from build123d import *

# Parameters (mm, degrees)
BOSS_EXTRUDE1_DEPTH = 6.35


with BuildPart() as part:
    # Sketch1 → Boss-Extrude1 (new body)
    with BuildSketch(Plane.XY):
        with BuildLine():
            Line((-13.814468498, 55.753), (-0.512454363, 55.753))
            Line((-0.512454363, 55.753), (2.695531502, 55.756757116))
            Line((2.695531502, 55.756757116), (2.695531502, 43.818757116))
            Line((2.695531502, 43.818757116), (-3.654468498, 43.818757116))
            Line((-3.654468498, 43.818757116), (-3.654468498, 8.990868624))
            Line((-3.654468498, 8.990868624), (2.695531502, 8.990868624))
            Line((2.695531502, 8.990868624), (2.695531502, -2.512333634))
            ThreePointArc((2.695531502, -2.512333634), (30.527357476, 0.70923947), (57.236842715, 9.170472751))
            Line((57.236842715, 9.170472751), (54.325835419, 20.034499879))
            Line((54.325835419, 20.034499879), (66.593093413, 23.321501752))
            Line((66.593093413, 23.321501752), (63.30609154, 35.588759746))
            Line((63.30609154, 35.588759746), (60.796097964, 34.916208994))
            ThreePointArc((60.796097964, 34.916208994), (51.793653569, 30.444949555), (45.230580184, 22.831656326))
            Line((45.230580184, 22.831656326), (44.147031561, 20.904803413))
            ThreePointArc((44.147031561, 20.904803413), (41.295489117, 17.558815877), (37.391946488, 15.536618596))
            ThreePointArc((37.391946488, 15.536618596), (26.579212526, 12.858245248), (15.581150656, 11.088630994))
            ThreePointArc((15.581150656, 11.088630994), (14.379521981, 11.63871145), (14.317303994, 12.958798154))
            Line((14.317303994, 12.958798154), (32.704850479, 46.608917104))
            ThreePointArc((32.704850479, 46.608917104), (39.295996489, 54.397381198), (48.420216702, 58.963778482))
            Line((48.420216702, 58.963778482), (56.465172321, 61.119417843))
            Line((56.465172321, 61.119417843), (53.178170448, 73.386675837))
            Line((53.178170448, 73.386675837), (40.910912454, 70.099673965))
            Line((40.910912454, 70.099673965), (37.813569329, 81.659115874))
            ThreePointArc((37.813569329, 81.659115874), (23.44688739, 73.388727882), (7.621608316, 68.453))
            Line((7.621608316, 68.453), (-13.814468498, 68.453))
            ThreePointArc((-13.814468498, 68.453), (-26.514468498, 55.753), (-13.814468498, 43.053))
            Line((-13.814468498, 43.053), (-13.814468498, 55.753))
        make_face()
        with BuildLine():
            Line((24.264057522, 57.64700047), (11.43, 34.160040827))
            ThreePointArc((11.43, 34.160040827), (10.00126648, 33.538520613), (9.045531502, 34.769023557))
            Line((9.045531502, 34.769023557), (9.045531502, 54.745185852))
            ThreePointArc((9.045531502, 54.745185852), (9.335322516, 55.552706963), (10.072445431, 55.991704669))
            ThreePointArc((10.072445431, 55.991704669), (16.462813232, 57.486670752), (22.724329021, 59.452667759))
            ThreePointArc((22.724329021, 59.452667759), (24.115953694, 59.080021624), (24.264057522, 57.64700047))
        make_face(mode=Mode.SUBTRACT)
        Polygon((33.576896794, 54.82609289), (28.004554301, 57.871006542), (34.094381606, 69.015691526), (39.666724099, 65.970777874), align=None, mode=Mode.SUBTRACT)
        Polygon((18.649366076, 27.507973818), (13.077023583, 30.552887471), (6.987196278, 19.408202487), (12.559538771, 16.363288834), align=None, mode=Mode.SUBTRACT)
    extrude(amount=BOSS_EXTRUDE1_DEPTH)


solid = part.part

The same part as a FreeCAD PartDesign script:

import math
import FreeCAD as App
import Part
import Sketcher
from FreeCAD import Vector
Q = App.Units.Quantity

doc = App.newDocument("Part")
body = doc.addObject("PartDesign::Body", "Body")

# Sketch on XY plane
sketch1 = body.newObject("Sketcher::SketchObject", "Sketch")
sketch1.AttachmentSupport = (doc.getObject("XY_Plane"), [""])
sketch1.MapMode = "FlatFace"
sketch1.addGeometry(Part.LineSegment(Vector(-13.814468, 55.753, 0), Vector(-0.512454, 55.753, 0)), False)
sketch1.addGeometry(Part.LineSegment(Vector(-0.512454, 55.753, 0), Vector(2.695532, 55.756757, 0)), False)
sketch1.addGeometry(Part.LineSegment(Vector(2.695532, 55.756757, 0), Vector(2.695532, 43.818757, 0)), False)
sketch1.addGeometry(Part.LineSegment(Vector(2.695532, 43.818757, 0), Vector(-3.654468, 43.818757, 0)), False)
sketch1.addGeometry(Part.LineSegment(Vector(-3.654468, 43.818757, 0), Vector(-3.654468, 8.990869, 0)), False)
sketch1.addGeometry(Part.LineSegment(Vector(-3.654468, 8.990869, 0), Vector(2.695532, 8.990869, 0)), False)
sketch1.addGeometry(Part.LineSegment(Vector(2.695532, 8.990869, 0), Vector(2.695532, -2.512334, 0)), False)
sketch1.addGeometry(Part.ArcOfCircle(Part.Circle(Vector(-0.155752, 143.953675, 0), Vector(0, 0, 1), 146.49376), math.radians(-88.884752), math.radians(-66.935009)), False)
sketch1.addGeometry(Part.LineSegment(Vector(57.236843, 9.170473, 0), Vector(54.325835, 20.0345, 0)), False)
sketch1.addGeometry(Part.LineSegment(Vector(54.325835, 20.0345, 0), Vector(66.593093, 23.321502, 0)), False)
sketch1.addGeometry(Part.LineSegment(Vector(66.593093, 23.321502, 0), Vector(63.306092, 35.58876, 0)), False)
sketch1.addGeometry(Part.LineSegment(Vector(63.306092, 35.58876, 0), Vector(60.796098, 34.916209, 0)), False)
sketch1.addGeometry(Part.ArcOfCircle(Part.Circle(Vector(67.370102, 10.381693, 0), Vector(0, 0, 1), 25.4), math.radians(105), math.radians(150.649162)), False)
sketch1.addGeometry(Part.LineSegment(Vector(45.23058, 22.831656, 0), Vector(44.147032, 20.904803, 0)), False)
sketch1.addGeometry(Part.ArcOfCircle(Part.Circle(Vector(34.184247, 26.507287, 0), Vector(0, 0, 1), 11.43), math.radians(-73.701676), math.radians(-29.350838)), False)
sketch1.addGeometry(Part.ArcOfCircle(Part.Circle(Vector(-0.155752, 143.953676, 0), Vector(0, 0, 1), 133.79376), math.radians(-83.245199), math.radians(-73.701676)), False)
sketch1.addGeometry(Part.ArcOfCircle(Part.Circle(Vector(15.431772, 12.349815, 0), Vector(0, 0, 1), 1.27), math.radians(151.346337), math.radians(276.7548)), False)
sketch1.addGeometry(Part.LineSegment(Vector(14.317304, 12.958798, 0), Vector(32.70485, 46.608917, 0)), False)
sketch1.addGeometry(Part.ArcOfCircle(Part.Circle(Vector(54.99422, 34.429262, 0), Vector(0, 0, 1), 25.4), math.radians(105), math.radians(151.346337)), False)
sketch1.addGeometry(Part.LineSegment(Vector(48.420217, 58.963778, 0), Vector(56.465172, 61.119418, 0)), False)
sketch1.addGeometry(Part.LineSegment(Vector(56.465172, 61.119418, 0), Vector(53.17817, 73.386676, 0)), False)
sketch1.addGeometry(Part.LineSegment(Vector(53.17817, 73.386676, 0), Vector(40.910912, 70.099674, 0)), False)
sketch1.addGeometry(Part.LineSegment(Vector(40.910912, 70.099674, 0), Vector(37.813569, 81.659116, 0)), False)
sketch1.addGeometry(Part.ArcOfCircle(Part.Circle(Vector(-6.809754, 142.56178, 0), Vector(0, 0, 1), 75.500831), math.radians(-78.980576), math.radians(-53.769802)), False)
sketch1.addGeometry(Part.LineSegment(Vector(7.621608, 68.453, 0), Vector(-13.814468, 68.453, 0)), False)
sketch1.addGeometry(Part.ArcOfCircle(Part.Circle(Vector(-13.814468, 55.753, 0), Vector(0, 0, 1), 12.7), math.radians(90), math.radians(270)), False)
sketch1.addGeometry(Part.LineSegment(Vector(-13.814468, 43.053, 0), Vector(-13.814468, 55.753, 0)), False)
sketch1.addGeometry(Part.LineSegment(Vector(13.077024, 30.552887, 0), Vector(18.649366, 27.507974, 0)), False)
sketch1.addGeometry(Part.LineSegment(Vector(18.649366, 27.507974, 0), Vector(12.559539, 16.363289, 0)), False)
sketch1.addGeometry(Part.LineSegment(Vector(12.559539, 16.363289, 0), Vector(6.987196, 19.408202, 0)), False)
sketch1.addGeometry(Part.LineSegment(Vector(6.987196, 19.408202, 0), Vector(13.077024, 30.552887, 0)), False)
sketch1.addGeometry(Part.ArcOfCircle(Part.Circle(Vector(23.149589, 58.255983, 0), Vector(0, 0, 1), 1.27), math.radians(-28.653663), math.radians(109.563441)), False)
sketch1.addGeometry(Part.LineSegment(Vector(24.264058, 57.647, 0), Vector(11.43, 34.160041, 0)), False)
sketch1.addGeometry(Part.ArcOfCircle(Part.Circle(Vector(10.315532, 34.769024, 0), Vector(0, 0, 1), 1.27), math.radians(180), math.radians(331.346337)), False)
sketch1.addGeometry(Part.LineSegment(Vector(9.045532, 34.769024, 0), Vector(9.045532, 54.745186, 0)), False)
sketch1.addGeometry(Part.ArcOfCircle(Part.Circle(Vector(10.315532, 54.745186, 0), Vector(0, 0, 1), 1.27), math.radians(101.034869), math.radians(180)), False)
sketch1.addGeometry(Part.ArcOfCircle(Part.Circle(Vector(-6.809754, 142.56178, 0), Vector(0, 0, 1), 88.200831), math.radians(-78.965131), math.radians(-70.436559)), False)
sketch1.addGeometry(Part.LineSegment(Vector(39.666724, 65.970778, 0), Vector(33.576897, 54.826093, 0)), False)
sketch1.addGeometry(Part.LineSegment(Vector(33.576897, 54.826093, 0), Vector(28.004554, 57.871007, 0)), False)
sketch1.addGeometry(Part.LineSegment(Vector(28.004554, 57.871007, 0), Vector(34.094382, 69.015692, 0)), False)
sketch1.addGeometry(Part.LineSegment(Vector(34.094382, 69.015692, 0), Vector(39.666724, 65.970778, 0)), False)
sketch1.addConstraint(Sketcher.Constraint("Coincident", 0, 2, 1, 1))
sketch1.addConstraint(Sketcher.Constraint("Coincident", 1, 2, 2, 1))
sketch1.addConstraint(Sketcher.Constraint("Coincident", 2, 2, 3, 1))
sketch1.addConstraint(Sketcher.Constraint("Coincident", 3, 2, 4, 1))
sketch1.addConstraint(Sketcher.Constraint("Coincident", 4, 2, 5, 1))
sketch1.addConstraint(Sketcher.Constraint("Coincident", 5, 2, 6, 1))
sketch1.addConstraint(Sketcher.Constraint("Coincident", 6, 2, 7, 1))
sketch1.addConstraint(Sketcher.Constraint("Coincident", 7, 2, 8, 1))
sketch1.addConstraint(Sketcher.Constraint("Coincident", 8, 2, 9, 1))
sketch1.addConstraint(Sketcher.Constraint("Coincident", 9, 2, 10, 1))
sketch1.addConstraint(Sketcher.Constraint("Coincident", 10, 2, 11, 1))
sketch1.addConstraint(Sketcher.Constraint("Coincident", 11, 2, 12, 1))
sketch1.addConstraint(Sketcher.Constraint("Coincident", 12, 2, 13, 1))
sketch1.addConstraint(Sketcher.Constraint("Coincident", 13, 2, 14, 2))
sketch1.addConstraint(Sketcher.Constraint("Coincident", 14, 1, 15, 2))
sketch1.addConstraint(Sketcher.Constraint("Coincident", 15, 1, 16, 2))
sketch1.addConstraint(Sketcher.Constraint("Coincident", 16, 1, 17, 1))
sketch1.addConstraint(Sketcher.Constraint("Coincident", 17, 2, 18, 2))
sketch1.addConstraint(Sketcher.Constraint("Coincident", 18, 1, 19, 1))
sketch1.addConstraint(Sketcher.Constraint("Coincident", 19, 2, 20, 1))
sketch1.addConstraint(Sketcher.Constraint("Coincident", 20, 2, 21, 1))
sketch1.addConstraint(Sketcher.Constraint("Coincident", 21, 2, 22, 1))
sketch1.addConstraint(Sketcher.Constraint("Coincident", 22, 2, 23, 2))
sketch1.addConstraint(Sketcher.Constraint("Coincident", 23, 1, 24, 1))
sketch1.addConstraint(Sketcher.Constraint("Coincident", 24, 2, 25, 1))
sketch1.addConstraint(Sketcher.Constraint("Coincident", 25, 2, 26, 1))
sketch1.addConstraint(Sketcher.Constraint("Coincident", 26, 2, 0, 1))
sketch1.addConstraint(Sketcher.Constraint("Coincident", 27, 2, 28, 1))
sketch1.addConstraint(Sketcher.Constraint("Coincident", 28, 2, 29, 1))
sketch1.addConstraint(Sketcher.Constraint("Coincident", 29, 2, 30, 1))
sketch1.addConstraint(Sketcher.Constraint("Coincident", 30, 2, 27, 1))
sketch1.addConstraint(Sketcher.Constraint("Coincident", 31, 1, 32, 1))
sketch1.addConstraint(Sketcher.Constraint("Coincident", 32, 2, 33, 2))
sketch1.addConstraint(Sketcher.Constraint("Coincident", 33, 1, 34, 1))
sketch1.addConstraint(Sketcher.Constraint("Coincident", 34, 2, 35, 2))
sketch1.addConstraint(Sketcher.Constraint("Coincident", 35, 1, 36, 1))
sketch1.addConstraint(Sketcher.Constraint("Coincident", 36, 2, 31, 2))
sketch1.addConstraint(Sketcher.Constraint("Coincident", 37, 2, 38, 1))
sketch1.addConstraint(Sketcher.Constraint("Coincident", 38, 2, 39, 1))
sketch1.addConstraint(Sketcher.Constraint("Coincident", 39, 2, 40, 1))
sketch1.addConstraint(Sketcher.Constraint("Coincident", 40, 2, 37, 1))
sketch1.addConstraint(Sketcher.Constraint("Horizontal", 0))
sketch1.addConstraint(Sketcher.Constraint("Vertical", 2))
sketch1.addConstraint(Sketcher.Constraint("Horizontal", 3))
sketch1.addConstraint(Sketcher.Constraint("Vertical", 4))
sketch1.addConstraint(Sketcher.Constraint("Horizontal", 5))
sketch1.addConstraint(Sketcher.Constraint("Vertical", 6))
sketch1.addConstraint(Sketcher.Constraint("Horizontal", 24))
sketch1.addConstraint(Sketcher.Constraint("Vertical", 26))
sketch1.addConstraint(Sketcher.Constraint("Vertical", 34))
sketch1.addConstraint(Sketcher.Constraint("Coincident", 15, 3, 7, 3))
sketch1.addConstraint(Sketcher.Constraint("Coincident", 36, 3, 23, 3))
sketch1.addConstraint(Sketcher.Constraint("Coincident", 26, 2, 25, 3))
sketch1.addConstraint(Sketcher.Constraint("Radius", 12, Q("1 in")))
sketch1.addConstraint(Sketcher.Constraint("Radius", 18, Q("1 in")))
sketch1.addConstraint(Sketcher.Constraint("Radius", 25, Q("0.5 in")))
sketch1.addConstraint(Sketcher.Constraint("Radius", 14, Q("0.45 in")))
sketch1.addConstraint(Sketcher.Constraint("Radius", 16, Q("0.05 in")))
sketch1.addConstraint(Sketcher.Constraint("Radius", 31, Q("0.05 in")))
sketch1.addConstraint(Sketcher.Constraint("Radius", 33, Q("0.05 in")))
sketch1.addConstraint(Sketcher.Constraint("Radius", 35, Q("0.05 in")))
sketch1.addConstraint(Sketcher.Constraint("Distance", 9, Q("0.5 in")))
sketch1.addConstraint(Sketcher.Constraint("Distance", 10, Q("0.5 in")))
sketch1.addConstraint(Sketcher.Constraint("Distance", 20, Q("0.5 in")))
sketch1.addConstraint(Sketcher.Constraint("Distance", 21, Q("0.5 in")))
sketch1.addConstraint(Sketcher.Constraint("Distance", 28, Q("0.5 in")))
sketch1.addConstraint(Sketcher.Constraint("Distance", 30, Q("0.5 in")))
sketch1.addConstraint(Sketcher.Constraint("Distance", 37, Q("0.5 in")))
sketch1.addConstraint(Sketcher.Constraint("Distance", 39, Q("0.5 in")))
sketch1.addConstraint(Sketcher.Constraint("DistanceX", 3, 2, 3, 1, Q("0.25 in")))
sketch1.addConstraint(Sketcher.Constraint("DistanceX", 5, 1, 5, 2, Q("0.25 in")))
sketch1.addConstraint(Sketcher.Constraint("DistanceY", 2, 2, 2, 1, Q("0.47 in")))
sketch1.addConstraint(Sketcher.Constraint("DistanceX", 1, 2, 35, 3, Q("0.3 in")))
sketch1.addConstraint(Sketcher.Constraint("DistanceX", 25, 3, 3, 2, Q("0.4 in")))
sketch1.addConstraint(Sketcher.Constraint("DistanceX", 24, 2, 3, 2, Q("0.4 in")))
sketch1.addConstraint(Sketcher.Constraint("Distance", 27, Q("0.25 in")))
sketch1.addConstraint(Sketcher.Constraint("Distance", 29, Q("0.25 in")))
sketch1.addConstraint(Sketcher.Constraint("Distance", 38, Q("0.25 in")))
sketch1.addConstraint(Sketcher.Constraint("Distance", 40, Q("0.25 in")))
sketch1.addConstraint(Sketcher.Constraint("DistanceX", -1, 1, 32, 2, Q("0.45 in")))
sketch1.addConstraint(Sketcher.Constraint("DistanceY", -1, 1, 25, 3, Q("2.195 in")))
sketch1.addConstraint(Sketcher.Constraint("Radius", 7, 146.49376))
sketch1.addConstraint(Sketcher.Constraint("Radius", 15, 133.79376))
sketch1.addConstraint(Sketcher.Constraint("Radius", 23, 75.500831))
sketch1.addConstraint(Sketcher.Constraint("Radius", 36, 88.200831))
sketch1.addConstraint(Sketcher.Constraint("DistanceY", 4, 2, 4, 1, 34.827888))
sketch1.addConstraint(Sketcher.Constraint("DistanceX", -1, 1, 12, 3, 67.370102))
sketch1.addConstraint(Sketcher.Constraint("DistanceY", -1, 1, 8, 2, 20.0345))
sketch1.addConstraint(Sketcher.Constraint("DistanceY", -1, 1, 9, 2, 23.321502))
sketch1.addConstraint(Sketcher.Constraint("DistanceY", -1, 1, 16, 1, 12.958798))
sketch1.addConstraint(Sketcher.Constraint("DistanceY", -1, 1, 31, 1, 57.647))
sketch1.addConstraint(Sketcher.Constraint("DistanceX", 7, 3, 14, 3, 34.339999))
sketch1.addConstraint(Sketcher.Constraint("DistanceX", 23, 3, 14, 3, 40.994001))
sketch1.addConstraint(Sketcher.Constraint("DistanceY", 14, 3, 35, 3, 28.237899))
sketch1.addConstraint(Sketcher.Constraint("DistanceX", 0, 2, 14, 3, 34.696701))
sketch1.addConstraint(Sketcher.Constraint("DistanceX", 10, 2, 9, 2, 3.287002))
sketch1.addConstraint(Sketcher.Constraint("DistanceX", 14, 3, 14, 1, 3.2077))
sketch1.addConstraint(Sketcher.Constraint("DistanceY", 17, 2, 19, 2, 14.510501))
sketch1.addConstraint(Sketcher.Constraint("DistanceX", 20, 2, 19, 2, 3.287002))
sketch1.addConstraint(Sketcher.Constraint("DistanceY", 21, 2, 20, 2, 3.287002))
sketch1.addConstraint(Sketcher.Constraint("DistanceX", 22, 2, 20, 2, 15.364601))
sketch1.addConstraint(Sketcher.Constraint("DistanceY", 19, 2, 22, 2, 20.539698))
sketch1.addConstraint(Sketcher.Constraint("DistanceY", 28, 2, 30, 2, 14.189599))
sketch1.addConstraint(Sketcher.Constraint("DistanceX", 0, 2, 35, 1, 10.5849))
sketch1.addConstraint(Sketcher.Constraint("DistanceY", 37, 2, 39, 2, 14.189599))
sketch1.addConstraint(Sketcher.Constraint("DistanceY", 18, 1, 40, 2, 7.006999))
sketch1.addConstraint(Sketcher.Constraint("Distance", 1, 3.207988))
sketch1.addConstraint(Sketcher.Constraint("Distance", 8, 11.247269))
sketch1.addConstraint(Sketcher.Constraint("Distance", 13, 2.21062))
sketch1.addConstraint(Sketcher.Constraint("Distance", 19, 8.328751))
sketch1.addConstraint(Sketcher.Constraint("Distance", 32, 26.764721))
sketch1.addConstraint(Sketcher.Constraint("DistanceX", 24, 2, 24, 1, 21.436077))
sketch1.addConstraint(Sketcher.Constraint("DistanceY", 6, 2, 6, 1, 11.503202))
sketch1.addConstraint(Sketcher.Constraint("DistanceY", 34, 1, 34, 2, 19.976162))
sketch1.addConstraint(Sketcher.Constraint("DistanceX", 7, 3, -1, 1, 0.155752))
sketch1.addConstraint(Sketcher.Constraint("DistanceX", -1, 1, 18, 3, 54.99422))
sketch1.addConstraint(Sketcher.Constraint("DistanceX", -1, 1, 31, 3, 23.149589))
sketch1.addConstraint(Sketcher.Constraint("DistanceX", -1, 1, 10, 2, 63.306092))
sketch1.addConstraint(Sketcher.Constraint("DistanceY", -1, 1, 11, 2, 34.916209))
sketch1.addConstraint(Sketcher.Constraint("DistanceX", -1, 1, 12, 2, 45.23058))
sketch1.addConstraint(Sketcher.Constraint("DistanceX", -1, 1, 13, 2, 44.147032))
sketch1.addConstraint(Sketcher.Constraint("DistanceX", -1, 1, 15, 1, 15.581151))
sketch1.addConstraint(Sketcher.Constraint("DistanceX", -1, 1, 17, 2, 32.70485))
sketch1.addConstraint(Sketcher.Constraint("DistanceY", -1, 1, 18, 1, 58.963778))
sketch1.addConstraint(Sketcher.Constraint("DistanceX", -1, 1, 28, 2, 12.559539))
sketch1.addConstraint(Sketcher.Constraint("DistanceY", -1, 1, 28, 2, 16.363289))
sketch1.addConstraint(Sketcher.Constraint("DistanceX", -1, 1, 36, 2, 22.724329))
sketch1.addConstraint(Sketcher.Constraint("DistanceX", -1, 1, 39, 2, 34.094382))
sketch1.addConstraint(Sketcher.Constraint("DistanceY", -1, 1, 39, 2, 69.015692))
sketch1.addConstraint(Sketcher.Constraint("DistanceY", 16, 3, 14, 3, 14.157471))
sketch1.addConstraint(Sketcher.Constraint("DistanceY", 27, 2, 33, 3, 7.26105))
sketch1.addConstraint(Sketcher.Constraint("DistanceY", 27, 2, 33, 1, 7.26105))
pad1 = body.newObject("PartDesign::Pad", "Pad")
pad1.Profile = sketch1
pad1.Length = Q("0.25 in")

doc.recompute()
